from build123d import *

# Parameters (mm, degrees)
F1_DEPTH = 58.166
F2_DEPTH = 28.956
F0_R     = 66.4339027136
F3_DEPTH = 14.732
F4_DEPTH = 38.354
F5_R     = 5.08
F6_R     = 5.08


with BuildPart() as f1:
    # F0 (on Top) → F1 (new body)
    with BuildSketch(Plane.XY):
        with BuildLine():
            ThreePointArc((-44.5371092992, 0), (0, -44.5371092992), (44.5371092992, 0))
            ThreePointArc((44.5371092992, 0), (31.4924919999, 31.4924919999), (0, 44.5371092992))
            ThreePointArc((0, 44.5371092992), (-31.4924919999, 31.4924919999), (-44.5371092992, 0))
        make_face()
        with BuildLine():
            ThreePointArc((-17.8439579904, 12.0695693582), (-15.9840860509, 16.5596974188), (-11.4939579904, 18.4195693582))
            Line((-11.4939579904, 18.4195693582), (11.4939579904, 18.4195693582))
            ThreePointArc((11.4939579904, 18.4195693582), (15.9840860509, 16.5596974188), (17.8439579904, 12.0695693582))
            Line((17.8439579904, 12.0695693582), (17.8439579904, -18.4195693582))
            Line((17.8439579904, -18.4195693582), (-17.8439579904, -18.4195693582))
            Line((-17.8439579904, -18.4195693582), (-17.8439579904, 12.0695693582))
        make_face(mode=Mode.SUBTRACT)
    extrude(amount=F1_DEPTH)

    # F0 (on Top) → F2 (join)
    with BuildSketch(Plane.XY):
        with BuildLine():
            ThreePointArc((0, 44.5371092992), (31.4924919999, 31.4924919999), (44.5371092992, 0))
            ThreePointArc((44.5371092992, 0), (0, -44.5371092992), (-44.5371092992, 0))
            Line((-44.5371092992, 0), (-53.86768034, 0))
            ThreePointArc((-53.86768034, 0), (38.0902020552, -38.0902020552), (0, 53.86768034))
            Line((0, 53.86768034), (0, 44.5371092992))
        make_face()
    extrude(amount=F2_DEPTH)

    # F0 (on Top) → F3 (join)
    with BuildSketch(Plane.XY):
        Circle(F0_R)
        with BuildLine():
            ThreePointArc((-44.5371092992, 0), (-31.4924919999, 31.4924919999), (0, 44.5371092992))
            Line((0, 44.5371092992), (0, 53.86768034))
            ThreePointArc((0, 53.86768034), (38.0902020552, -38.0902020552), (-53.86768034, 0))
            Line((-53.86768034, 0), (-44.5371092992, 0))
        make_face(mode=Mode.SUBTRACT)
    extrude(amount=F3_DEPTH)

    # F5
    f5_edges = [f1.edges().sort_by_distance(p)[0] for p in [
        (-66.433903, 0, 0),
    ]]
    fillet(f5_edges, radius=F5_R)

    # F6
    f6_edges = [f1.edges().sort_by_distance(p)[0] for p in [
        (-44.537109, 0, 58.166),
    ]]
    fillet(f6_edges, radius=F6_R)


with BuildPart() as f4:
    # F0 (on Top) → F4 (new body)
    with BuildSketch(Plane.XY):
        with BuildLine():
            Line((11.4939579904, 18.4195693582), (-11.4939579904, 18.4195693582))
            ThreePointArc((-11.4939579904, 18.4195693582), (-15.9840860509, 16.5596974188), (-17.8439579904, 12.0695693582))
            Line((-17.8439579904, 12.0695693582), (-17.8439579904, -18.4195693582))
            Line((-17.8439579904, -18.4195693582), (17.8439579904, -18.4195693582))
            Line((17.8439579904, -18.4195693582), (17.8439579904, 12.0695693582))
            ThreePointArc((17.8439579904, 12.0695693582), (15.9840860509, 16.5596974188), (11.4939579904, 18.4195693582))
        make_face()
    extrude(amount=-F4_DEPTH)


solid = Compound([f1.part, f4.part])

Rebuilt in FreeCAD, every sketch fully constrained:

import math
import FreeCAD as App
import Part
import Sketcher
Q = App.Units.Quantity


def edges_at(feature, points):
    """Names of the edges that pass closest to the given points."""
    edges = feature.Shape.Edges
    near = lambda p: min(range(len(edges)), key=lambda i: edges[i].distToShape(Part.Vertex(*p))[0])
    return sorted({f"Edge{near(p) + 1}" for p in points})

doc = App.newDocument("Part")
params = doc.addObject("Spreadsheet::Sheet", "Params")
for row, (alias, value) in enumerate([
    ("sketch1_radius", "0.25 in"),
    ("pad1_length", "2.29 in"),
    ("pad2_length", "1.14 in"),
    ("pad3_length", "0.58 in"),
    ("fillet_radius", "0.2 in"),
    ("fillet2_radius", "0.2 in"),
    ("sketch4_radius", "0.25 in"),
    ("pad4_length", "1.51 in"),
], start=1):
    params.set(f"A{row}", alias)
    params.set(f"B{row}", "=" + value)
    params.setAlias(f"B{row}", alias)

body = doc.addObject("PartDesign::Body", "Body")

# Sketch on XY plane
sketch1 = body.newObject("Sketcher::SketchObject", "Sketch")
sketch1.AttachmentSupport = (doc.getObject("XY_Plane"), [""])
sketch1.MapMode = "FlatFace"
sketch1.addGeometry([
    Part.Circle(App.Vector(0, 0, 0), App.Vector(0, 0, 1), 45),  # 0
    Part.LineSegment(App.Vector(-18, -18, 0), App.Vector(-18, 12, 0)),  # 1
    Part.ArcOfCircle(Part.Circle(App.Vector(-11, 12, 0), App.Vector(0, 0, 1), 6), math.radians(90), math.radians(180)),  # 2
    Part.LineSegment(App.Vector(-11, 18, 0), App.Vector(11, 18, 0)),  # 3
    Part.ArcOfCircle(Part.Circle(App.Vector(11, 12, 0), App.Vector(0, 0, 1), 6), math.radians(0), math.radians(90)),  # 4
    Part.LineSegment(App.Vector(18, 12, 0), App.Vector(18, -18, 0)),  # 5
    Part.LineSegment(App.Vector(18, -18, 0), App.Vector(-18, -18, 0)),  # 6
], False)
sketch1.addConstraint([
    Sketcher.Constraint("Tangent", 1, 2, 2, 2),
    Sketcher.Constraint("Tangent", 2, 1, 3, 1),
    Sketcher.Constraint("Tangent", 3, 2, 4, 2),
    Sketcher.Constraint("Tangent", 4, 1, 5, 1),
    Sketcher.Constraint("Coincident", 5, 2, 6, 1),
    Sketcher.Constraint("Coincident", 6, 2, 1, 1),
    Sketcher.Constraint("Vertical", 1),
    Sketcher.Constraint("Horizontal", 3),
    Sketcher.Constraint("Vertical", 5),
    Sketcher.Constraint("Horizontal", 6),
    Sketcher.Constraint("Coincident", 0, 3, -1, 1),
    Sketcher.Constraint("Equal", 2, 4),
    Sketcher.Constraint("Radius", 2, Q("0.25 in")),
    Sketcher.Constraint("Diameter", 0, Q("89.074219 mm")),
    Sketcher.Constraint("DistanceY", 1, 1, 1, 2, Q("30.489139 mm")),
    Sketcher.Constraint("DistanceX", 3, 1, 3, 2, Q("22.987916 mm")),
    Sketcher.Constraint("DistanceY", -1, 1, 2, 3, Q("12.069569 mm")),
    Sketcher.Constraint("DistanceX", 2, 3, -1, 1, Q("11.493958 mm")),
])
sketch1.setExpression("Constraints[12]", "Params.sketch1_radius")
pad1 = body.newObject("PartDesign::Pad", "Pad")
pad1.Profile = sketch1
pad1.setExpression("Length", "Params.pad1_length")

# Sketch on XY plane
sketch2 = body.newObject("Sketcher::SketchObject", "Sketch001")
sketch2.AttachmentSupport = (doc.getObject("XY_Plane"), [""])
sketch2.MapMode = "FlatFace"
sketch2.addGeometry([
    Part.ArcOfCircle(Part.Circle(App.Vector(0, 0, 0), App.Vector(0, 0, 1), 45), math.radians(180), math.radians(450)),
    Part.LineSegment(App.Vector(-45, 0, 0), App.Vector(-54, 0, 0)),
    Part.ArcOfCircle(Part.Circle(App.Vector(0, 0, 0), App.Vector(0, 0, 1), 54), math.radians(180), math.radians(450)),
    Part.LineSegment(App.Vector(0, 54, 0), App.Vector(0, 45, 0)),
], False)
sketch2.addConstraint([
    Sketcher.Constraint("Coincident", 0, 1, 1, 1),
    Sketcher.Constraint("Coincident", 1, 2, 2, 1),
    Sketcher.Constraint("Coincident", 2, 2, 3, 1),
    Sketcher.Constraint("Coincident", 3, 2, 0, 2),
    Sketcher.Constraint("Horizontal", 1),
    Sketcher.Constraint("Vertical", 3),
    Sketcher.Constraint("Coincident", 0, 3, -1, 1),
    Sketcher.Constraint("Coincident", 2, 3, -1, 1),
    Sketcher.Constraint("PointOnObject", 0, 1, -1),
    Sketcher.Constraint("PointOnObject", 2, 2, -2),
    Sketcher.Constraint("Radius", 0, Q("44.537109 mm")),
    Sketcher.Constraint("Radius", 2, Q("53.86768 mm")),
])
pad2 = body.newObject("PartDesign::Pad", "Pad001")
pad2.Profile = sketch2
pad2.setExpression("Length", "Params.pad2_length")

# Sketch on XY plane
sketch3 = body.newObject("Sketcher::SketchObject", "Sketch002")
sketch3.AttachmentSupport = (doc.getObject("XY_Plane"), [""])
sketch3.MapMode = "FlatFace"
sketch3.addGeometry([
    Part.Circle(App.Vector(0, 0, 0), App.Vector(0, 0, 1), 66),  # 0
    Part.LineSegment(App.Vector(-54, 0, 0), App.Vector(-45, 0, 0)),  # 1
    Part.ArcOfCircle(Part.Circle(App.Vector(0, 0, 0), App.Vector(0, 0, 1), 45), math.radians(90), math.radians(180)),  # 2
    Part.LineSegment(App.Vector(0, 45, 0), App.Vector(0, 54, 0)),  # 3
    Part.ArcOfCircle(Part.Circle(App.Vector(0, 0, 0), App.Vector(0, 0, 1), 54), math.radians(180), math.radians(450)),  # 4
], False)
sketch3.addConstraint([
    Sketcher.Constraint("Coincident", 1, 2, 2, 2),
    Sketcher.Constraint("Coincident", 2, 1, 3, 1),
    Sketcher.Constraint("Coincident", 3, 2, 4, 2),
    Sketcher.Constraint("Coincident", 4, 1, 1, 1),
    Sketcher.Constraint("Horizontal", 1),
    Sketcher.Constraint("Vertical", 3),
    Sketcher.Constraint("Coincident", 0, 3, -1, 1),
    Sketcher.Constraint("Coincident", 2, 3, -1, 1),
    Sketcher.Constraint("Coincident", 4, 3, -1, 1),
    Sketcher.Constraint("PointOnObject", 1, 2, -1),
    Sketcher.Constraint("PointOnObject", 2, 1, -2),
    Sketcher.Constraint("Radius", 2, Q("44.537109 mm")),
    Sketcher.Constraint("Radius", 4, Q("53.86768 mm")),
    Sketcher.Constraint("Diameter", 0, Q("132.867805 mm")),
])
pad3 = body.newObject("PartDesign::Pad", "Pad002")
pad3.Profile = sketch3
pad3.setExpression("Length", "Params.pad3_length")
doc.recompute()

fillet = body.newObject("PartDesign::Fillet", "Fillet")
fillet.Base = (pad3, edges_at(pad3, [(-66.434, 0, 0)]))
fillet.setExpression("Radius", "Params.fillet_radius")
doc.recompute()

fillet2 = body.newObject("PartDesign::Fillet", "Fillet001")
fillet2.Base = (fillet, edges_at(fillet, [(0, -44.537, 58.166)]))
fillet2.setExpression("Radius", "Params.fillet2_radius")
body2 = doc.addObject("PartDesign::Body", "Body001")

# Sketch on XY plane
sketch4 = body2.newObject("Sketcher::SketchObject", "Sketch003")
sketch4.AttachmentSupport = (doc.getObject("XY_Plane001"), [""])
sketch4.MapMode = "FlatFace"
sketch4.addGeometry([
    Part.LineSegment(App.Vector(11, 18, 0), App.Vector(-11, 18, 0)),  # 0
    Part.ArcOfCircle(Part.Circle(App.Vector(-11, 12, 0), App.Vector(0, 0, 1), 6), math.radians(90), math.radians(180)),  # 1
    Part.LineSegment(App.Vector(-18, 12, 0), App.Vector(-18, -18, 0)),  # 2
    Part.LineSegment(App.Vector(-18, -18, 0), App.Vector(18, -18, 0)),  # 3
    Part.LineSegment(App.Vector(18, -18, 0), App.Vector(18, 12, 0)),  # 4
    Part.ArcOfCircle(Part.Circle(App.Vector(11, 12, 0), App.Vector(0, 0, 1), 6), math.radians(0), math.radians(90)),  # 5
], False)
sketch4.addConstraint([
    Sketcher.Constraint("Tangent", 0, 2, 1, 1),
    Sketcher.Constraint("Tangent", 1, 2, 2, 1),
    Sketcher.Constraint("Coincident", 2, 2, 3, 1),
    Sketcher.Constraint("Coincident", 3, 2, 4, 1),
    Sketcher.Constraint("Tangent", 4, 2, 5, 1),
    Sketcher.Constraint("Tangent", 5, 2, 0, 1),
    Sketcher.Constraint("Horizontal", 0),
    Sketcher.Constraint("Vertical", 2),
    Sketcher.Constraint("Horizontal", 3),
    Sketcher.Constraint("Vertical", 4),
    Sketcher.Constraint("Equal", 1, 5),
    Sketcher.Constraint("Radius", 1, Q("0.25 in")),
    Sketcher.Constraint("DistanceY", 2, 2, 2, 1, Q("30.489139 mm")),
    Sketcher.Constraint("DistanceX", 0, 2, 0, 1, Q("22.987916 mm")),
    Sketcher.Constraint("DistanceY", -1, 1, 1, 3, Q("12.069569 mm")),
    Sketcher.Constraint("DistanceX", 1, 3, -1, 1, Q("11.493958 mm")),
])
sketch4.setExpression("Constraints[11]", "Params.sketch4_radius")
pad4 = body2.newObject("PartDesign::Pad", "Pad003")
pad4.Profile = sketch4
pad4.setExpression("Length", "Params.pad4_length")
pad4.Reversed = True

doc.recompute()
